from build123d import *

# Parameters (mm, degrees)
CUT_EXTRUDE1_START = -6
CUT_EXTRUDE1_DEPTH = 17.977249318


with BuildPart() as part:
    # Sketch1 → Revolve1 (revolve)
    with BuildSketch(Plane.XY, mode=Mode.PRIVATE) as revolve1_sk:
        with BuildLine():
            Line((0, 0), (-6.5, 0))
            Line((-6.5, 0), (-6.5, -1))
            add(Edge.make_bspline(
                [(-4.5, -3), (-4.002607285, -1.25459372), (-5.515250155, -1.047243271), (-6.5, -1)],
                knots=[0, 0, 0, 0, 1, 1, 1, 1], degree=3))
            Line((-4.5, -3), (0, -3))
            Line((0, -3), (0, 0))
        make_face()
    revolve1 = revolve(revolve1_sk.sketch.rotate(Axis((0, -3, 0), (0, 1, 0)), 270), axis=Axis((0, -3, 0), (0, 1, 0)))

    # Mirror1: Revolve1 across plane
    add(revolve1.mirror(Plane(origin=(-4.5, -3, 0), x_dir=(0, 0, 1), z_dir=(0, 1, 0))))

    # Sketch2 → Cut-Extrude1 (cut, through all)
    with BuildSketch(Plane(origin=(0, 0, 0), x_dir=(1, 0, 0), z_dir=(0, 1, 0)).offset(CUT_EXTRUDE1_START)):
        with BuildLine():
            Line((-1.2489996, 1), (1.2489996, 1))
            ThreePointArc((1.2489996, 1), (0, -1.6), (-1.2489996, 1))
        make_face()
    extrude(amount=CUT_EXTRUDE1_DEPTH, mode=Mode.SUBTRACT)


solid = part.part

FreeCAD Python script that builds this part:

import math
import FreeCAD as App
import Part
import Sketcher
from FreeCAD import Vector

doc = App.newDocument("Part")
params = doc.addObject("Spreadsheet::Sheet", "Params")
for row, (alias, value) in enumerate([
    ("revolution_angle", "360 deg"),
    ("sketch2_radius", "1.6 mm"),
], start=1):
    params.set(f"A{row}", alias)
    params.set(f"B{row}", "=" + value)
    params.setAlias(f"B{row}", alias)

body = doc.addObject("PartDesign::Body", "Body")

# Sketch on XY plane
sketch1 = doc.addObject("Sketcher::SketchObject", "Sketch")
body.addObject(sketch1)
sketch1.AttachmentSupport = (doc.XY_Plane, [""])
sketch1.MapMode = "FlatFace"
sketch1.addGeometry([
    Part.LineSegment(Vector(0, 0, 0), Vector(-6.5, 0, 0)),  # 0
    Part.LineSegment(Vector(-6.5, 0, 0), Vector(-6.5, -1, 0)),  # 1
    Part.BSplineCurve([Vector(-4.5, -3, 0), Vector(-4.002607, -1.254594, 0), Vector(-5.51525, -1.047243, 0), Vector(-6.5, -1, 0)], [4, 4], [0, 1], False, 3, [1, 1, 1, 1], False),  # 2
    Part.LineSegment(Vector(-4.5, -3, 0), Vector(0, -3, 0)),  # 3
    Part.LineSegment(Vector(0, -3, 0), Vector(0, 0, 0)),  # 4
], False)
sketch1.addConstraint([
    Sketcher.Constraint("Block", 2),
    Sketcher.Constraint("Coincident", 0, 2, 1, 1),
    Sketcher.Constraint("Coincident", 1, 2, 2, 2),
    Sketcher.Constraint("Coincident", 2, 1, 3, 1),
    Sketcher.Constraint("Coincident", 3, 2, 4, 1),
    Sketcher.Constraint("Coincident", 4, 2, 0, 1),
    Sketcher.Constraint("Horizontal", 0),
    Sketcher.Constraint("Vertical", 1),
    Sketcher.Constraint("Horizontal", 3),
    Sketcher.Constraint("Vertical", 4),
    Sketcher.Constraint("Coincident", 4, 2, -1, 1),
])
revolution = doc.addObject("PartDesign::Revolution", "Revolution")
body.addObject(revolution)
revolution.Profile = sketch1
revolution.ReferenceAxis = (sketch1, ["V_Axis"])
revolution.setExpression("Angle", "Params.revolution_angle")
doc.recompute()

datumplane = doc.addObject("PartDesign::Plane", "DatumPlane")
body.addObject(datumplane)
datumplane.AttachmentSupport = (doc.XZ_Plane, [""])
datumplane.MapMode = "FlatFace"
datumplane.AttachmentOffset = App.Placement(Vector(0, 0, 3), App.Rotation())
mirrored = doc.addObject("PartDesign::Mirrored", "Mirrored")
body.addObject(mirrored)
mirrored.Originals = [revolution]
mirrored.MirrorPlane = (datumplane, [""])
body.Tip = mirrored

# Sketch on XZ plane
sketch2 = doc.addObject("Sketcher::SketchObject", "Sketch001")
body.addObject(sketch2)
sketch2.AttachmentSupport = (doc.XZ_Plane, [""])
sketch2.MapMode = "FlatFace"
sketch2.AttachmentOffset = App.Placement(Vector(0, 0, 6), App.Rotation())
sketch2.addGeometry([
    Part.LineSegment(Vector(1.2, -1, 0), Vector(-1.2, -1, 0)),
    Part.ArcOfCircle(Part.Circle(Vector(0, 0, 0), Vector(0, 0, 1), 1.6), math.radians(-39), math.radians(219)),
], False)
sketch2.addConstraint([
    Sketcher.Constraint("Coincident", 0, 1, 1, 1),
    Sketcher.Constraint("Coincident", 1, 2, 0, 2),
    Sketcher.Constraint("Horizontal", 0),
    Sketcher.Constraint("Coincident", 1, 3, -1, 1),
    Sketcher.Constraint("Radius", 1, 1.6),
    Sketcher.Constraint("DistanceY", 0, 1, -1, 1, 1.0),
])
sketch2.setExpression("Constraints[4]", "Params.sketch2_radius")
pocket1 = doc.addObject("PartDesign::Pocket", "Pocket")
body.addObject(pocket1)
pocket1.Profile = sketch2
pocket1.Type = "ThroughAll"

doc.recompute()
